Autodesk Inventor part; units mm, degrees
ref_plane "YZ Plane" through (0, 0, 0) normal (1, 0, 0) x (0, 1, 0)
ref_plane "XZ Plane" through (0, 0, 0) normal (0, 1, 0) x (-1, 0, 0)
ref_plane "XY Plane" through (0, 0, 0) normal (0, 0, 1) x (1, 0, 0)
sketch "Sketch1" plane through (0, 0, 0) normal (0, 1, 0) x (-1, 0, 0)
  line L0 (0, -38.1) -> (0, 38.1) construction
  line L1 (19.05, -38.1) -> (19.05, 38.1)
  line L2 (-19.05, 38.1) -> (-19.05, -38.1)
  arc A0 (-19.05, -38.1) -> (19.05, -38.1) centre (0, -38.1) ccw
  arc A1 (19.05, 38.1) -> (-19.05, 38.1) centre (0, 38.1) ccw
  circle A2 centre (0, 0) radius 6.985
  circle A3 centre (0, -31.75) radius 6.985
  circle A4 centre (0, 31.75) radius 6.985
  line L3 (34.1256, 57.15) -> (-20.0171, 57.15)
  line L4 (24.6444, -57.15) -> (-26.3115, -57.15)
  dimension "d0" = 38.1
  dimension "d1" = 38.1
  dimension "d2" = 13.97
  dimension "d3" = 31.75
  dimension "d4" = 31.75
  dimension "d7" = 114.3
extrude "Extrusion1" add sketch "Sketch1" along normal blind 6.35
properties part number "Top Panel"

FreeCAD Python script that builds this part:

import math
import FreeCAD as App
import Part
import Sketcher
Q = App.Units.Quantity

doc = App.newDocument("Part")
body = doc.addObject("PartDesign::Body", "Body")

# Sketch on XZ plane
sketch1 = doc.addObject("Sketcher::SketchObject", "Sketch")
body.addObject(sketch1)
sketch1.AttachmentSupport = (doc.XZ_Plane, [""])
sketch1.MapMode = "FlatFace"
sketch1.addGeometry([
    Part.ArcOfCircle(Part.Circle(App.Vector(0, -38.1, 0), App.Vector(0, 0, 1), 19.05), math.radians(180), math.radians(360)),  # 0
    Part.LineSegment(App.Vector(-19.05, -38.1, 0), App.Vector(-19.05, 38.1, 0)),  # 1
    Part.ArcOfCircle(Part.Circle(App.Vector(0, 38.1, 0), App.Vector(0, 0, 1), 19.05), math.radians(0), math.radians(180)),  # 2
    Part.LineSegment(App.Vector(19.05, 38.1, 0), App.Vector(19.05, -38.1, 0)),  # 3
    Part.Circle(App.Vector(0, -31.75, 0), App.Vector(0, 0, 1), 6.985),  # 4
    Part.Circle(App.Vector(0, 0, 0), App.Vector(0, 0, 1), 6.985),  # 5
    Part.Circle(App.Vector(0, 31.75, 0), App.Vector(0, 0, 1), 6.985),  # 6
], False)
sketch1.addConstraint([
    Sketcher.Constraint("Tangent", 0, 1, 1, 1),
    Sketcher.Constraint("Tangent", 1, 2, 2, 2),
    Sketcher.Constraint("Tangent", 2, 1, 3, 1),
    Sketcher.Constraint("Tangent", 3, 2, 0, 2),
    Sketcher.Constraint("Vertical", 1),
    Sketcher.Constraint("Vertical", 3),
    Sketcher.Constraint("Coincident", 5, 3, -1, 1),
    Sketcher.Constraint("Equal", 4, 5),
    Sketcher.Constraint("Equal", 5, 6),
    Sketcher.Constraint("Symmetric", 0, 3, 2, 3, -1, 1),
    Sketcher.Constraint("Symmetric", 4, 3, 6, 3, -1, 1),
    Sketcher.Constraint("PointOnObject", 4, 3, -2),
    Sketcher.Constraint("Diameter", 4, Q("0.55 in")),
    Sketcher.Constraint("Radius", 0, Q("0.75 in")),
    Sketcher.Constraint("DistanceY", 0, 3, -1, 1, Q("1.5 in")),
    Sketcher.Constraint("DistanceY", 4, 3, -1, 1, Q("1.25 in")),
])
pad1 = doc.addObject("PartDesign::Pad", "Pad")
body.addObject(pad1)
pad1.Profile = sketch1
pad1.Length = Q("0.25 in")
pad1.Reversed = True

doc.recompute()
